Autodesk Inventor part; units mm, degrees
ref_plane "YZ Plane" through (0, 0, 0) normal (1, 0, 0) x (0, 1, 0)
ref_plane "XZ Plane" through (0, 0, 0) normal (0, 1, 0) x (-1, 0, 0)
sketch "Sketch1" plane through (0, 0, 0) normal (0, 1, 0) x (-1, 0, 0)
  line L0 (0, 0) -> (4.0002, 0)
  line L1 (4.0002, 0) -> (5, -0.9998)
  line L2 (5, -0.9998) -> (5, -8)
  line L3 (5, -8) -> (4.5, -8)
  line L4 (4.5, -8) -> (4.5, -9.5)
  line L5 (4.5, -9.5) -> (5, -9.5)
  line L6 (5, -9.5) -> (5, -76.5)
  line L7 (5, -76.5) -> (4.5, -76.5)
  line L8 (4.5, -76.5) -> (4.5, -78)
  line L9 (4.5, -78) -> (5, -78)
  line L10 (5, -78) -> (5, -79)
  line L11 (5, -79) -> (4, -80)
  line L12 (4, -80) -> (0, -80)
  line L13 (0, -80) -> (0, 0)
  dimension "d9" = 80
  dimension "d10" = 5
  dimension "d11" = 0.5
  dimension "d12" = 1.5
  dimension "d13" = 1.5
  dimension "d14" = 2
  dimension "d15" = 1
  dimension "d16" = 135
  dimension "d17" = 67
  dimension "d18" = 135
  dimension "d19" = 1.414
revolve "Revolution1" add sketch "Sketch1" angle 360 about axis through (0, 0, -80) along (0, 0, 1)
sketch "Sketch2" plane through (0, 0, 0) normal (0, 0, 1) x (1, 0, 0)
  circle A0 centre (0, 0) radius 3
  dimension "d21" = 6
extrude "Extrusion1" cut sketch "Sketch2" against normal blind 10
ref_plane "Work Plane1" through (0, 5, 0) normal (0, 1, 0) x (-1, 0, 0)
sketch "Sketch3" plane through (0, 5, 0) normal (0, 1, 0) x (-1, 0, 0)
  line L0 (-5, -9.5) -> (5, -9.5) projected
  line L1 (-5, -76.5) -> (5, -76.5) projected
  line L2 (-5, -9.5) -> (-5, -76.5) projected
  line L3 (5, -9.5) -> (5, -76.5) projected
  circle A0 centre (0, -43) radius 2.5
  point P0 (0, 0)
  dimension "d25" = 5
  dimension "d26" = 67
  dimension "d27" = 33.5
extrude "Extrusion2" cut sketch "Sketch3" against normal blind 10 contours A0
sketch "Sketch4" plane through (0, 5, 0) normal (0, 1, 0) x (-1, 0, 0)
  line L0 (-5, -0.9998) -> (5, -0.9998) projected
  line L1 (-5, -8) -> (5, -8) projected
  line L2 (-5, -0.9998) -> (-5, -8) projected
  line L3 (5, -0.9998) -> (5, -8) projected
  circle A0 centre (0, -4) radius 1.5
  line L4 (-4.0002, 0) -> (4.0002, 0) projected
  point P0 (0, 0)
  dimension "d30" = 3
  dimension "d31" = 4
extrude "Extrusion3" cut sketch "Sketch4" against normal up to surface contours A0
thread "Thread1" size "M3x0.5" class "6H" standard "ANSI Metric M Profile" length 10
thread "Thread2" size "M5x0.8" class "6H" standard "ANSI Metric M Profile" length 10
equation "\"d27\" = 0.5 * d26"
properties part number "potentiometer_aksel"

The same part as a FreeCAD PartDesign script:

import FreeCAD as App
import Part
import Sketcher

V = App.Vector
Q = App.Units.Quantity

doc = App.newDocument("Part")
body = doc.addObject("PartDesign::Body", "Body")

# Sketch on XZ plane
sketch1 = body.newObject("Sketcher::SketchObject", "Sketch")
sketch1.AttachmentSupport = (doc.getObject("XZ_Plane"), [""])
sketch1.MapMode = "FlatFace"
sketch1.addGeometry(Part.LineSegment(V(-4, 0, 0), V(0, 0, 0)), False)
sketch1.addGeometry(Part.LineSegment(V(0, 0, 0), V(0, -80, 0)), False)
sketch1.addGeometry(Part.LineSegment(V(0, -80, 0), V(-4, -80, 0)), False)
sketch1.addGeometry(Part.LineSegment(V(-4, -80, 0), V(-5, -79, 0)), False)
sketch1.addGeometry(Part.LineSegment(V(-5, -79, 0), V(-5, -78, 0)), False)
sketch1.addGeometry(Part.LineSegment(V(-5, -78, 0), V(-4.5, -78, 0)), False)
sketch1.addGeometry(Part.LineSegment(V(-4.5, -78, 0), V(-4.5, -76.5, 0)), False)
sketch1.addGeometry(Part.LineSegment(V(-4.5, -76.5, 0), V(-5, -76.5, 0)), False)
sketch1.addGeometry(Part.LineSegment(V(-5, -76.5, 0), V(-5, -9.5, 0)), False)
sketch1.addGeometry(Part.LineSegment(V(-5, -9.5, 0), V(-4.5, -9.5, 0)), False)
sketch1.addGeometry(Part.LineSegment(V(-4.5, -9.5, 0), V(-4.5, -8, 0)), False)
sketch1.addGeometry(Part.LineSegment(V(-4.5, -8, 0), V(-5, -8, 0)), False)
sketch1.addGeometry(Part.LineSegment(V(-5, -8, 0), V(-5, -1, 0)), False)
sketch1.addGeometry(Part.LineSegment(V(-5, -1, 0), V(-4, 0, 0)), False)
sketch1.addConstraint(Sketcher.Constraint("Coincident", 0, 2, 1, 1))
sketch1.addConstraint(Sketcher.Constraint("Coincident", 1, 2, 2, 1))
sketch1.addConstraint(Sketcher.Constraint("Coincident", 2, 2, 3, 1))
sketch1.addConstraint(Sketcher.Constraint("Coincident", 3, 2, 4, 1))
sketch1.addConstraint(Sketcher.Constraint("Coincident", 4, 2, 5, 1))
sketch1.addConstraint(Sketcher.Constraint("Coincident", 5, 2, 6, 1))
sketch1.addConstraint(Sketcher.Constraint("Coincident", 6, 2, 7, 1))
sketch1.addConstraint(Sketcher.Constraint("Coincident", 7, 2, 8, 1))
sketch1.addConstraint(Sketcher.Constraint("Coincident", 8, 2, 9, 1))
sketch1.addConstraint(Sketcher.Constraint("Coincident", 9, 2, 10, 1))
sketch1.addConstraint(Sketcher.Constraint("Coincident", 10, 2, 11, 1))
sketch1.addConstraint(Sketcher.Constraint("Coincident", 11, 2, 12, 1))
sketch1.addConstraint(Sketcher.Constraint("Coincident", 12, 2, 13, 1))
sketch1.addConstraint(Sketcher.Constraint("Coincident", 13, 2, 0, 1))
sketch1.addConstraint(Sketcher.Constraint("Horizontal", 0))
sketch1.addConstraint(Sketcher.Constraint("Vertical", 1))
sketch1.addConstraint(Sketcher.Constraint("Horizontal", 2))
sketch1.addConstraint(Sketcher.Constraint("Vertical", 4))
sketch1.addConstraint(Sketcher.Constraint("Horizontal", 5))
sketch1.addConstraint(Sketcher.Constraint("Vertical", 6))
sketch1.addConstraint(Sketcher.Constraint("Horizontal", 7))
sketch1.addConstraint(Sketcher.Constraint("Vertical", 8))
sketch1.addConstraint(Sketcher.Constraint("Horizontal", 9))
sketch1.addConstraint(Sketcher.Constraint("Vertical", 10))
sketch1.addConstraint(Sketcher.Constraint("Horizontal", 11))
sketch1.addConstraint(Sketcher.Constraint("Vertical", 12))
sketch1.addConstraint(Sketcher.Constraint("Coincident", 0, 2, -1, 1))
sketch1.addConstraint(Sketcher.Constraint("Perpendicular", 3, 13))
sketch1.addConstraint(Sketcher.Constraint("Vertical", 4, 2, 7, 2))
sketch1.addConstraint(Sketcher.Constraint("Vertical", 6, 2, 9, 2))
sketch1.addConstraint(Sketcher.Constraint("Vertical", 8, 2, 11, 2))
sketch1.addConstraint(Sketcher.Constraint("Equal", 6, 10))
sketch1.addConstraint(Sketcher.Constraint("DistanceY", 1, 2, 1, 1, Q("80 mm")))
sketch1.addConstraint(Sketcher.Constraint("DistanceY", 4, 1, 4, 2, Q("1 mm")))
sketch1.addConstraint(Sketcher.Constraint("DistanceY", 8, 1, 8, 2, Q("67 mm")))
sketch1.addConstraint(Sketcher.Constraint("Angle", 3, Q("135 deg")))
sketch1.addConstraint(Sketcher.Constraint("DistanceX", 5, 1, 5, 2, Q("0.5 mm")))
sketch1.addConstraint(Sketcher.Constraint("DistanceY", 6, 1, 6, 2, Q("1.5 mm")))
sketch1.addConstraint(Sketcher.Constraint("DistanceX", 3, 2, -1, 1, Q("5 mm")))
sketch1.addConstraint(Sketcher.Constraint("DistanceX", 3, 2, 2, 2, Q("1 mm")))
sketch1.addConstraint(Sketcher.Constraint("Distance", 13, Q("1.414 mm")))
revolution = body.newObject("PartDesign::Revolution", "Revolution")
revolution.Profile = sketch1
revolution.ReferenceAxis = (sketch1, ["V_Axis"])
revolution.Angle = 360

# Sketch on XY plane
sketch2 = body.newObject("Sketcher::SketchObject", "Sketch001")
sketch2.AttachmentSupport = (doc.getObject("XY_Plane"), [""])
sketch2.MapMode = "FlatFace"
sketch2.addGeometry(Part.Circle(V(0, 0, 0), V(0, 0, 1), 3), False)
sketch2.addConstraint(Sketcher.Constraint("Coincident", 0, 3, -1, 1))
sketch2.addConstraint(Sketcher.Constraint("Diameter", 0, Q("6 mm")))
pocket1 = body.newObject("PartDesign::Pocket", "Pocket")
pocket1.Profile = sketch2
pocket1.Length = 10

# Sketch on XZ plane
sketch3 = body.newObject("Sketcher::SketchObject", "Sketch002")
sketch3.AttachmentSupport = (doc.getObject("XZ_Plane"), [""])
sketch3.MapMode = "FlatFace"
sketch3.AttachmentOffset = App.Placement(V(0, 0, -5), App.Rotation())
sketch3.addGeometry(Part.Circle(V(0, -43, 0), V(0, 0, 1), 2.5), False)
sketch3.addConstraint(Sketcher.Constraint("PointOnObject", 0, 3, -2))
sketch3.addConstraint(Sketcher.Constraint("Diameter", 0, Q("5 mm")))
sketch3.addConstraint(Sketcher.Constraint("DistanceY", 0, 3, -1, 1, Q("43 mm")))
pocket2 = body.newObject("PartDesign::Pocket", "Pocket001")
pocket2.Profile = sketch3
pocket2.Length = 10
pocket2.Reversed = True

# Sketch on XZ plane
sketch4 = body.newObject("Sketcher::SketchObject", "Sketch003")
sketch4.AttachmentSupport = (doc.getObject("XZ_Plane"), [""])
sketch4.MapMode = "FlatFace"
sketch4.AttachmentOffset = App.Placement(V(0, 0, -5), App.Rotation())
sketch4.addGeometry(Part.Circle(V(0, -4, 0), V(0, 0, 1), 1.5), False)
sketch4.addConstraint(Sketcher.Constraint("PointOnObject", 0, 3, -2))
sketch4.addConstraint(Sketcher.Constraint("Diameter", 0, Q("3 mm")))
sketch4.addConstraint(Sketcher.Constraint("DistanceY", 0, 3, -1, 1, Q("4 mm")))
pocket3 = body.newObject("PartDesign::Pocket", "Pocket002")
pocket3.Profile = sketch4
pocket3.Type = "UpToFirst"
pocket3.Reversed = True

doc.recompute()
